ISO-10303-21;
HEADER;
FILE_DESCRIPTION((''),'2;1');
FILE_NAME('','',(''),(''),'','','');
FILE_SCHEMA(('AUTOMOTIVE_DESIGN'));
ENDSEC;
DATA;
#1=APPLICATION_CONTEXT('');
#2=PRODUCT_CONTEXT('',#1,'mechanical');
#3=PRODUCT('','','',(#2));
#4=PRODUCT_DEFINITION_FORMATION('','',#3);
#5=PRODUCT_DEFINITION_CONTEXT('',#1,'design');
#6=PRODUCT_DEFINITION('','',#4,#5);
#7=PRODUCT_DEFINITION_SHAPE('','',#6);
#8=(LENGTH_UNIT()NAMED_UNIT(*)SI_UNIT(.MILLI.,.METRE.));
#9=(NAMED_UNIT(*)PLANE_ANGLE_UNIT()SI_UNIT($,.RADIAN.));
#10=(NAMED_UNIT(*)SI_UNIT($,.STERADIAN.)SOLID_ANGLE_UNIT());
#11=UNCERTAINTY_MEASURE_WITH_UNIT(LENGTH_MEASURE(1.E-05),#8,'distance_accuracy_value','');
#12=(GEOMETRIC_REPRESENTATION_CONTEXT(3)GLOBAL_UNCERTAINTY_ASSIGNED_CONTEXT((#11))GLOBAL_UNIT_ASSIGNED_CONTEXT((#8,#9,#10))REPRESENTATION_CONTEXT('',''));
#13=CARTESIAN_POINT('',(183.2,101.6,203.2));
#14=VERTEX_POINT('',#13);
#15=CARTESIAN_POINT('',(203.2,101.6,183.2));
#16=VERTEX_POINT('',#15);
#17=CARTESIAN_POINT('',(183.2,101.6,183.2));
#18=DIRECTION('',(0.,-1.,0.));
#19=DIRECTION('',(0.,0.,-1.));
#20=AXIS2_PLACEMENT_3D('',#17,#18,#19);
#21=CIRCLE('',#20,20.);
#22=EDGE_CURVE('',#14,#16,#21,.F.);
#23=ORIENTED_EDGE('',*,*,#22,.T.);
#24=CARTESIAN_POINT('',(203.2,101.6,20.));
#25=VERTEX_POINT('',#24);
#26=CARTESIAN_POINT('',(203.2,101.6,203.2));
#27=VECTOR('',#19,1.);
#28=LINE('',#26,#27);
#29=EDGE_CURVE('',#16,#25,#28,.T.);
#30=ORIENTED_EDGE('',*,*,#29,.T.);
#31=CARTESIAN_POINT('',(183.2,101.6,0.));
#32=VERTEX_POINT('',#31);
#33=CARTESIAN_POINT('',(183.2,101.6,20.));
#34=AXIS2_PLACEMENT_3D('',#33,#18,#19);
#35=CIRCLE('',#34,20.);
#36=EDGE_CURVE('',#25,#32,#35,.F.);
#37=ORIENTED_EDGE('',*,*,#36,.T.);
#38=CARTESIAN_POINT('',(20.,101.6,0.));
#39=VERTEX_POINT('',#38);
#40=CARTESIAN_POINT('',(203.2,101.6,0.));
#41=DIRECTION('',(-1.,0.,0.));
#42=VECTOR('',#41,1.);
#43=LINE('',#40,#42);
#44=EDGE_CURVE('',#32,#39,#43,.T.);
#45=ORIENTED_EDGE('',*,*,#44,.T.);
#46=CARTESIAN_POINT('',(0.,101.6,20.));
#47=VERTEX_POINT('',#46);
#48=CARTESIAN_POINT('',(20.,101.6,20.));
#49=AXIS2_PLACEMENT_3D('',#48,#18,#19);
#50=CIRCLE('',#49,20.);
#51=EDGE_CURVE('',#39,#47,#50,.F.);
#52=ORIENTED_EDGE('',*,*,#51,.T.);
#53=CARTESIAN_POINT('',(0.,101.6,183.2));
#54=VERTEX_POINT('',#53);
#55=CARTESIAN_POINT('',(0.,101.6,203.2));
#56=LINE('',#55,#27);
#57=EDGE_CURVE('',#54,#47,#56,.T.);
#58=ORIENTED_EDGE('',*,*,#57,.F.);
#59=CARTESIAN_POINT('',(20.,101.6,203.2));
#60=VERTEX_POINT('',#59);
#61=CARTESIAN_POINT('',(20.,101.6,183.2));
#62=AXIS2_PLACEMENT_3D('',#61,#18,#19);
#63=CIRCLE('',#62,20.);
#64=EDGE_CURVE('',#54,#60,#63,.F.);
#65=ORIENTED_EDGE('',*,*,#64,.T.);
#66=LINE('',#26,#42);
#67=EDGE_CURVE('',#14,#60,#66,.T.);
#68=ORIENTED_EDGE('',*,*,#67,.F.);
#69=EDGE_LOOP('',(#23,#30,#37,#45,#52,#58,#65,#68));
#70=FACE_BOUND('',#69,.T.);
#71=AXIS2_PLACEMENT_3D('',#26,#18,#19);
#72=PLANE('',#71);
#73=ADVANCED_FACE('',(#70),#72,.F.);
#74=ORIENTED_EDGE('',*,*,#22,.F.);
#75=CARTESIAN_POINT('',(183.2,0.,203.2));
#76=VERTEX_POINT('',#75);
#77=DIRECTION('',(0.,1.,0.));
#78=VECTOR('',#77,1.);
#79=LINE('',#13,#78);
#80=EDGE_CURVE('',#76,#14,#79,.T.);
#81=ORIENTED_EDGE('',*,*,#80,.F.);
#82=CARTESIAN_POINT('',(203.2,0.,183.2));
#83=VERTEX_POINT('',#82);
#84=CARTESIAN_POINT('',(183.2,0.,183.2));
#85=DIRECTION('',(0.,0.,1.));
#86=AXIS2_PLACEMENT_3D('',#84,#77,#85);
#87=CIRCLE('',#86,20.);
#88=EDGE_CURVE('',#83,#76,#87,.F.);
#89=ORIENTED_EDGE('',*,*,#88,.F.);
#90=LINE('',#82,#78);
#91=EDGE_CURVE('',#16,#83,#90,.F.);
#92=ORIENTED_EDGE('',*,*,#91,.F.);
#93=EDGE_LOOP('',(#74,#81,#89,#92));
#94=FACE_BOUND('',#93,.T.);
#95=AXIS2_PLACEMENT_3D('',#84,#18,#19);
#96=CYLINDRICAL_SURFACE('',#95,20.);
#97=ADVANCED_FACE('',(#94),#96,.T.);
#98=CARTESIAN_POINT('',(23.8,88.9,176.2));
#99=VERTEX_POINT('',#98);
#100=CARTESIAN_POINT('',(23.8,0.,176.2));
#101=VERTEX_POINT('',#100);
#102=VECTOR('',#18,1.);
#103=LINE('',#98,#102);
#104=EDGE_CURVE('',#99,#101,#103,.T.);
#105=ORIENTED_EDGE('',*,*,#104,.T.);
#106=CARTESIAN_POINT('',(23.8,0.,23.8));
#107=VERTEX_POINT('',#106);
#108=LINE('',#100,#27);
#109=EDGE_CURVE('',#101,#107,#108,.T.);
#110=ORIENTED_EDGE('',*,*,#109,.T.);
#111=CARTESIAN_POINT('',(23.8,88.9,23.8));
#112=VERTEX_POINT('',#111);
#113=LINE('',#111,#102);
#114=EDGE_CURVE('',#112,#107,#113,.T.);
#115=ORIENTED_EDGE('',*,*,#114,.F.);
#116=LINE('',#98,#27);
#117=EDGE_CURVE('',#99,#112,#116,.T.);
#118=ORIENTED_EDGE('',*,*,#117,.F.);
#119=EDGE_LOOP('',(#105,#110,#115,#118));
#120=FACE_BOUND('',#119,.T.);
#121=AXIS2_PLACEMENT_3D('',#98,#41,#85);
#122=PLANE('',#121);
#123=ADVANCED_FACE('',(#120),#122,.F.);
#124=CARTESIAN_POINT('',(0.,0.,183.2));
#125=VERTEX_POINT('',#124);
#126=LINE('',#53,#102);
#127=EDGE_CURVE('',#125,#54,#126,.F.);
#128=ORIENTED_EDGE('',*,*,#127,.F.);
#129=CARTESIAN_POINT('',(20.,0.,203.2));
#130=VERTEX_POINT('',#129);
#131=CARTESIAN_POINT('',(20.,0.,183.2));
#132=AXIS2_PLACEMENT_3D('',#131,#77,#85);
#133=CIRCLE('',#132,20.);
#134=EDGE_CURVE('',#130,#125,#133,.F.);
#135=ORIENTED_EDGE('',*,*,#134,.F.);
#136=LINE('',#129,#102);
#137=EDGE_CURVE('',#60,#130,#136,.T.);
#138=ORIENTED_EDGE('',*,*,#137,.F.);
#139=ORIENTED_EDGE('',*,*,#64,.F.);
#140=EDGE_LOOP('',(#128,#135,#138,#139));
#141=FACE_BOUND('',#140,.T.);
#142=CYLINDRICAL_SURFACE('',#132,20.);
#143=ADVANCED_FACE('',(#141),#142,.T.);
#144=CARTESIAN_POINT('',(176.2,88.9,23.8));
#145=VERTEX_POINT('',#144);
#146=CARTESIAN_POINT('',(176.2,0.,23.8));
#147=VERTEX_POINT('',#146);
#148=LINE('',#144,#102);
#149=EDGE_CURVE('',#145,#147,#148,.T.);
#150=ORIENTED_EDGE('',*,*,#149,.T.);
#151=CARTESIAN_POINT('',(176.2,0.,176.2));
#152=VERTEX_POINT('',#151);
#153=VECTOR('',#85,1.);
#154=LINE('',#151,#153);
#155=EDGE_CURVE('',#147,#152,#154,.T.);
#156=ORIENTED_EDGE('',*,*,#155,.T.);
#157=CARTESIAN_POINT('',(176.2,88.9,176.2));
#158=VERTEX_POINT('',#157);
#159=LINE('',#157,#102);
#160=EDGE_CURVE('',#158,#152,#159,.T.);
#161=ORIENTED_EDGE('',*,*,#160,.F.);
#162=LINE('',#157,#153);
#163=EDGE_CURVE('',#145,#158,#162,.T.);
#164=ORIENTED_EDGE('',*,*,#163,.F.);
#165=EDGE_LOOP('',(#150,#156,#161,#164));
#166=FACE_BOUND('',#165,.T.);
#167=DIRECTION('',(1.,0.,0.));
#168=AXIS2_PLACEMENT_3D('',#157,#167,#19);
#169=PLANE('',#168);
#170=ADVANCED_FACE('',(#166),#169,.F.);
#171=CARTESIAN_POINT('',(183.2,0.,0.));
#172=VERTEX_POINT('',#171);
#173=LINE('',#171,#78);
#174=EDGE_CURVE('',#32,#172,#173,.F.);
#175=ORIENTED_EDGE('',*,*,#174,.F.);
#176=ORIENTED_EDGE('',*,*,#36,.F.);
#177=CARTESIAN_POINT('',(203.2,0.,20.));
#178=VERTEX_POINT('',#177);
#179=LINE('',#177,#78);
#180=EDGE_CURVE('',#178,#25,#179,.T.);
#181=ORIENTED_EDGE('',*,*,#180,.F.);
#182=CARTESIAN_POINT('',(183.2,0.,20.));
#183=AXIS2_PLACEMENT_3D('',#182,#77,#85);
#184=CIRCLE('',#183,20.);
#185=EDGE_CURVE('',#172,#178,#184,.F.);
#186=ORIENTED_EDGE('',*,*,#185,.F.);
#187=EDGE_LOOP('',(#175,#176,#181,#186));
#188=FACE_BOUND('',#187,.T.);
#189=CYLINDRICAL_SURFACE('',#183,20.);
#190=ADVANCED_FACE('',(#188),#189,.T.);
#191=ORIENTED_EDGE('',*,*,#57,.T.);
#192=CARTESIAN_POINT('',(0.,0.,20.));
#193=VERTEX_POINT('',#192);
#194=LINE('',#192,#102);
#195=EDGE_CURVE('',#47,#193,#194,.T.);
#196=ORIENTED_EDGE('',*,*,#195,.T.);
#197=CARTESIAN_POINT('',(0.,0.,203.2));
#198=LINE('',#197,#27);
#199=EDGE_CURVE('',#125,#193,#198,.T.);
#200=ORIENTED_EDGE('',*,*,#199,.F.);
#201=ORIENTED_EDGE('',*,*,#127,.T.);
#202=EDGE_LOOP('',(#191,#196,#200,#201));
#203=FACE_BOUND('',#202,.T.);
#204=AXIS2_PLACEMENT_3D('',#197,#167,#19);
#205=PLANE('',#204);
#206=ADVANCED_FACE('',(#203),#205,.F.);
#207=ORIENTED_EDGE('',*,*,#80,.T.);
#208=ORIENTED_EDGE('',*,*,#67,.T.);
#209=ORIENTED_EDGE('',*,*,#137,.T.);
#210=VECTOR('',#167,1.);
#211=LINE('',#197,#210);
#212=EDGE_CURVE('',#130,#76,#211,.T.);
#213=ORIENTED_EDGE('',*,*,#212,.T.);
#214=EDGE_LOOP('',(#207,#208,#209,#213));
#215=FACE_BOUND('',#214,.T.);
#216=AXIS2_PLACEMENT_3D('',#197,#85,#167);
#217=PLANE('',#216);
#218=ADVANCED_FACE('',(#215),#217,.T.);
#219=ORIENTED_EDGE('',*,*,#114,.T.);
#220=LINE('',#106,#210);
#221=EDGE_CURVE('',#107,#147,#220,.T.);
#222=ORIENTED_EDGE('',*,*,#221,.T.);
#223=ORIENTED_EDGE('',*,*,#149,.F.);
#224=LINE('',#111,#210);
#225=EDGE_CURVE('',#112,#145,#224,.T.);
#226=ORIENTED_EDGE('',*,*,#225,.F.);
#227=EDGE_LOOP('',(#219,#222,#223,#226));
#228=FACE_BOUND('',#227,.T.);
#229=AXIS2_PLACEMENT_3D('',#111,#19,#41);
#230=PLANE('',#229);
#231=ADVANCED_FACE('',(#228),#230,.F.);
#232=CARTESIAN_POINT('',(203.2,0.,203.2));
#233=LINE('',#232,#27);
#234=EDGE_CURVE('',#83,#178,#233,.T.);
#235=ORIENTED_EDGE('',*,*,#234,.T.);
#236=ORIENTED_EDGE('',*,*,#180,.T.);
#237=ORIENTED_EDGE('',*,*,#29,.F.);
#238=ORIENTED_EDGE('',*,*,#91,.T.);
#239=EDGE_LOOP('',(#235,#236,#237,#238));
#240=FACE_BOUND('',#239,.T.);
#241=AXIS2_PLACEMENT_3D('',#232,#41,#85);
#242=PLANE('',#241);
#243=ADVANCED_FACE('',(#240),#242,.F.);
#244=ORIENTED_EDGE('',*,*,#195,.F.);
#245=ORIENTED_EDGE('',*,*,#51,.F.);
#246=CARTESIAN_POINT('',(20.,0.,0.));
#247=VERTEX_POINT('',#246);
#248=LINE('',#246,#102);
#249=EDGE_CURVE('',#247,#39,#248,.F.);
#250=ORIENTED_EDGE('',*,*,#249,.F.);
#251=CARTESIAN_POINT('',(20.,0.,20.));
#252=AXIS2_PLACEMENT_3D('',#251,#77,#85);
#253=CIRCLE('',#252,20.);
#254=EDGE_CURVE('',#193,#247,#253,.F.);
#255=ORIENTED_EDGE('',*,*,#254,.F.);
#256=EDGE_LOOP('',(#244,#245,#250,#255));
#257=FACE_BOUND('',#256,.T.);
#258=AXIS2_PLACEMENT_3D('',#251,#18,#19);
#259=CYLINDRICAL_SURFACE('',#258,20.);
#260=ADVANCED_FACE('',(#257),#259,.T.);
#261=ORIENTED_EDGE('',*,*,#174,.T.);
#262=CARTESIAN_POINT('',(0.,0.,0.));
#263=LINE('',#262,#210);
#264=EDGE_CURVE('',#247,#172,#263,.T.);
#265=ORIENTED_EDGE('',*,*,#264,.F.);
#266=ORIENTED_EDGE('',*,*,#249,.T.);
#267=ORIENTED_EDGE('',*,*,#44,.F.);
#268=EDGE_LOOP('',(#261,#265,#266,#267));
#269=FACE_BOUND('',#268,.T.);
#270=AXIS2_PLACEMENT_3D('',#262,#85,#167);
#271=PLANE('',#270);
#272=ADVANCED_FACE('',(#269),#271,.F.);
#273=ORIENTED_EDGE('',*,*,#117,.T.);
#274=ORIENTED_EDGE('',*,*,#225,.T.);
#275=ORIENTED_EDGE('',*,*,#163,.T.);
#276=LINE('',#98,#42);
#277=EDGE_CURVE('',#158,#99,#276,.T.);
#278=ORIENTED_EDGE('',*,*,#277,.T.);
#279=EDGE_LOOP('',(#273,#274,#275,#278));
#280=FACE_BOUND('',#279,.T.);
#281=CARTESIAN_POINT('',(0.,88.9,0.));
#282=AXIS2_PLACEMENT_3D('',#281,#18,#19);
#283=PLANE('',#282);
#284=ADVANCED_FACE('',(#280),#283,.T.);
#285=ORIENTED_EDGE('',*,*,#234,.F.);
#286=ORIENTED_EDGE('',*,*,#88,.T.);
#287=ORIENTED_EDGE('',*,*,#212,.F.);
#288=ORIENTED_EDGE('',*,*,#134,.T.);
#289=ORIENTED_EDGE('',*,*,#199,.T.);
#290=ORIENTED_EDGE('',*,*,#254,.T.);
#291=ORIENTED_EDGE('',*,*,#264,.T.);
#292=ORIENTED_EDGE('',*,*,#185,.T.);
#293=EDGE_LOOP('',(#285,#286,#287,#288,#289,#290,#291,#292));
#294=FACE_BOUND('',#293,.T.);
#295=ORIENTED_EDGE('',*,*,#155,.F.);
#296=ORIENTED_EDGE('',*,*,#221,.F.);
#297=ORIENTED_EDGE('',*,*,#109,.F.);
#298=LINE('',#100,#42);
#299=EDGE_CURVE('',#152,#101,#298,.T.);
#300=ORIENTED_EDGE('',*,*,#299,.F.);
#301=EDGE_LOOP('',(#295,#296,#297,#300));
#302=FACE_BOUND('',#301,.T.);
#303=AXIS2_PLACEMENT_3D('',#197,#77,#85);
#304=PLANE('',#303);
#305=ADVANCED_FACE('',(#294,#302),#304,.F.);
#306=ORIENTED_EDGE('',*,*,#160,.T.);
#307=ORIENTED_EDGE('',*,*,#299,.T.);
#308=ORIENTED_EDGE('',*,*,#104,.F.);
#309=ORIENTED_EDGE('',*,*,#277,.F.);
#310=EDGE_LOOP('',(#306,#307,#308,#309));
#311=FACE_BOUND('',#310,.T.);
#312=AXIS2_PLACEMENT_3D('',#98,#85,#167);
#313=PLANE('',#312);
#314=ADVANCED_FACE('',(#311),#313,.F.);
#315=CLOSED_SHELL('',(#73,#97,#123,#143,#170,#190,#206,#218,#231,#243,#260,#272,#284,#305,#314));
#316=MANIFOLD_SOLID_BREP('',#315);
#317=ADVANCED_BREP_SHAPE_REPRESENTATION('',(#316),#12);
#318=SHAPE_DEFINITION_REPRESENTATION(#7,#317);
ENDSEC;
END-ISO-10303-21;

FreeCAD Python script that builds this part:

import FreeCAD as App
import Part
import Sketcher
Q = App.Units.Quantity


def edges_at(feature, points):
    """Names of the edges that pass closest to the given points."""
    edges = feature.Shape.Edges
    near = lambda p: min(range(len(edges)), key=lambda i: edges[i].distToShape(Part.Vertex(*p))[0])
    return sorted({f"Edge{near(p) + 1}" for p in points})


def add_polygon(sketch, points):
    """Adds a closed chain of lines whose ends are joined by coincident constraints."""
    first, n = sketch.GeometryCount, len(points)
    for a, b in zip(points, points[1:] + points[:1]):
        sketch.addGeometry(Part.LineSegment(App.Vector(*a, 0), App.Vector(*b, 0)), False)
    for i in range(n):
        sketch.addConstraint(Sketcher.Constraint("Coincident", first + i, 2, first + (i + 1) % n, 1))

doc = App.newDocument("Part")
body = doc.addObject("PartDesign::Body", "Body")

sketch1 = doc.addObject("Sketcher::SketchObject", "Sketch")
body.addObject(sketch1)
sketch1.AttachmentSupport = (doc.XY_Plane, [""])
sketch1.MapMode = "FlatFace"
add_polygon(sketch1, [(0, 102), (0, 0), (203, 0), (203, 102)])
sketch1.addConstraint(Sketcher.Constraint("Vertical", 0))
sketch1.addConstraint(Sketcher.Constraint("Horizontal", 1))
sketch1.addConstraint(Sketcher.Constraint("Vertical", 2))
sketch1.addConstraint(Sketcher.Constraint("Horizontal", 3))
sketch1.addConstraint(Sketcher.Constraint("Coincident", 0, 2, -1, 1))
sketch1.addConstraint(Sketcher.Constraint("DistanceX", 1, 1, 1, 2, Q("8 in")))
sketch1.addConstraint(Sketcher.Constraint("DistanceY", 0, 2, 0, 1, Q("4 in")))
pad1 = doc.addObject("PartDesign::Pad", "Pad")
body.addObject(pad1)
pad1.Profile = sketch1
pad1.Length = Q("8 in")
doc.recompute()

fillet = doc.addObject("PartDesign::Fillet", "Fillet")
body.addObject(fillet)
fillet.Base = (pad1, edges_at(pad1, [(0, 50.8, 0)]))
fillet.Radius = 20
doc.recompute()

fillet2 = doc.addObject("PartDesign::Fillet", "Fillet001")
body.addObject(fillet2)
fillet2.Base = (fillet, edges_at(fillet, [(203.2, 50.8, 0)]))
fillet2.Radius = 20
doc.recompute()

fillet3 = doc.addObject("PartDesign::Fillet", "Fillet002")
body.addObject(fillet3)
fillet3.Base = (fillet2, edges_at(fillet2, [(0, 50.8, 203.2)]))
fillet3.Radius = 20
doc.recompute()

fillet4 = doc.addObject("PartDesign::Fillet", "Fillet003")
body.addObject(fillet4)
fillet4.Base = (fillet3, edges_at(fillet3, [(203.2, 50.8, 203.2)]))
fillet4.Radius = 20

sketch2 = doc.addObject("Sketcher::SketchObject", "Sketch001")
body.addObject(sketch2)
sketch2.AttachmentSupport = (doc.XZ_Plane, [""])
sketch2.MapMode = "FlatFace"
add_polygon(sketch2, [(24, 176), (24, 24), (176, 24), (176, 176)])
sketch2.addConstraint(Sketcher.Constraint("Vertical", 0))
sketch2.addConstraint(Sketcher.Constraint("Horizontal", 1))
sketch2.addConstraint(Sketcher.Constraint("Vertical", 2))
sketch2.addConstraint(Sketcher.Constraint("Horizontal", 3))
sketch2.addConstraint(Sketcher.Constraint("Equal", 3, 0))
sketch2.addConstraint(Sketcher.Constraint("DistanceX", 1, 1, 1, 2, Q("6 in")))
sketch2.addConstraint(Sketcher.Constraint("DistanceX", -1, 1, 0, 2, 23.8))
sketch2.addConstraint(Sketcher.Constraint("DistanceY", -1, 1, 0, 2, 23.8))
pocket1 = doc.addObject("PartDesign::Pocket", "Pocket")
body.addObject(pocket1)
pocket1.Profile = sketch2
pocket1.Length = Q("3.5 in")

doc.recompute()
